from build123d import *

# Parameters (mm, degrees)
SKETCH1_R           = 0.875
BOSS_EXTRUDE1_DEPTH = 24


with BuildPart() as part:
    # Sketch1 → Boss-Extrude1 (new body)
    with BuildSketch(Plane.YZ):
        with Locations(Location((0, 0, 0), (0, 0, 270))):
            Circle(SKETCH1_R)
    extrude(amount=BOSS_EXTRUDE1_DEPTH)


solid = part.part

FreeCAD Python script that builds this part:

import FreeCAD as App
import Part
import Sketcher
from FreeCAD import Vector

doc = App.newDocument("Part")
body = doc.addObject("PartDesign::Body", "Body")

# Sketch on YZ plane
sketch1 = body.newObject("Sketcher::SketchObject", "Sketch")
sketch1.AttachmentSupport = (doc.getObject("YZ_Plane"), [""])
sketch1.MapMode = "FlatFace"
sketch1.addGeometry(Part.Circle(Vector(0, 0, 0), Vector(0, 0, 1), 0.9), False)
sketch1.addConstraint(Sketcher.Constraint("Coincident", 0, 3, -1, 1))
sketch1.addConstraint(Sketcher.Constraint("Diameter", 0, 1.75))
pad1 = body.newObject("PartDesign::Pad", "Pad")
pad1.Profile = sketch1
pad1.Length = 24

doc.recompute()
